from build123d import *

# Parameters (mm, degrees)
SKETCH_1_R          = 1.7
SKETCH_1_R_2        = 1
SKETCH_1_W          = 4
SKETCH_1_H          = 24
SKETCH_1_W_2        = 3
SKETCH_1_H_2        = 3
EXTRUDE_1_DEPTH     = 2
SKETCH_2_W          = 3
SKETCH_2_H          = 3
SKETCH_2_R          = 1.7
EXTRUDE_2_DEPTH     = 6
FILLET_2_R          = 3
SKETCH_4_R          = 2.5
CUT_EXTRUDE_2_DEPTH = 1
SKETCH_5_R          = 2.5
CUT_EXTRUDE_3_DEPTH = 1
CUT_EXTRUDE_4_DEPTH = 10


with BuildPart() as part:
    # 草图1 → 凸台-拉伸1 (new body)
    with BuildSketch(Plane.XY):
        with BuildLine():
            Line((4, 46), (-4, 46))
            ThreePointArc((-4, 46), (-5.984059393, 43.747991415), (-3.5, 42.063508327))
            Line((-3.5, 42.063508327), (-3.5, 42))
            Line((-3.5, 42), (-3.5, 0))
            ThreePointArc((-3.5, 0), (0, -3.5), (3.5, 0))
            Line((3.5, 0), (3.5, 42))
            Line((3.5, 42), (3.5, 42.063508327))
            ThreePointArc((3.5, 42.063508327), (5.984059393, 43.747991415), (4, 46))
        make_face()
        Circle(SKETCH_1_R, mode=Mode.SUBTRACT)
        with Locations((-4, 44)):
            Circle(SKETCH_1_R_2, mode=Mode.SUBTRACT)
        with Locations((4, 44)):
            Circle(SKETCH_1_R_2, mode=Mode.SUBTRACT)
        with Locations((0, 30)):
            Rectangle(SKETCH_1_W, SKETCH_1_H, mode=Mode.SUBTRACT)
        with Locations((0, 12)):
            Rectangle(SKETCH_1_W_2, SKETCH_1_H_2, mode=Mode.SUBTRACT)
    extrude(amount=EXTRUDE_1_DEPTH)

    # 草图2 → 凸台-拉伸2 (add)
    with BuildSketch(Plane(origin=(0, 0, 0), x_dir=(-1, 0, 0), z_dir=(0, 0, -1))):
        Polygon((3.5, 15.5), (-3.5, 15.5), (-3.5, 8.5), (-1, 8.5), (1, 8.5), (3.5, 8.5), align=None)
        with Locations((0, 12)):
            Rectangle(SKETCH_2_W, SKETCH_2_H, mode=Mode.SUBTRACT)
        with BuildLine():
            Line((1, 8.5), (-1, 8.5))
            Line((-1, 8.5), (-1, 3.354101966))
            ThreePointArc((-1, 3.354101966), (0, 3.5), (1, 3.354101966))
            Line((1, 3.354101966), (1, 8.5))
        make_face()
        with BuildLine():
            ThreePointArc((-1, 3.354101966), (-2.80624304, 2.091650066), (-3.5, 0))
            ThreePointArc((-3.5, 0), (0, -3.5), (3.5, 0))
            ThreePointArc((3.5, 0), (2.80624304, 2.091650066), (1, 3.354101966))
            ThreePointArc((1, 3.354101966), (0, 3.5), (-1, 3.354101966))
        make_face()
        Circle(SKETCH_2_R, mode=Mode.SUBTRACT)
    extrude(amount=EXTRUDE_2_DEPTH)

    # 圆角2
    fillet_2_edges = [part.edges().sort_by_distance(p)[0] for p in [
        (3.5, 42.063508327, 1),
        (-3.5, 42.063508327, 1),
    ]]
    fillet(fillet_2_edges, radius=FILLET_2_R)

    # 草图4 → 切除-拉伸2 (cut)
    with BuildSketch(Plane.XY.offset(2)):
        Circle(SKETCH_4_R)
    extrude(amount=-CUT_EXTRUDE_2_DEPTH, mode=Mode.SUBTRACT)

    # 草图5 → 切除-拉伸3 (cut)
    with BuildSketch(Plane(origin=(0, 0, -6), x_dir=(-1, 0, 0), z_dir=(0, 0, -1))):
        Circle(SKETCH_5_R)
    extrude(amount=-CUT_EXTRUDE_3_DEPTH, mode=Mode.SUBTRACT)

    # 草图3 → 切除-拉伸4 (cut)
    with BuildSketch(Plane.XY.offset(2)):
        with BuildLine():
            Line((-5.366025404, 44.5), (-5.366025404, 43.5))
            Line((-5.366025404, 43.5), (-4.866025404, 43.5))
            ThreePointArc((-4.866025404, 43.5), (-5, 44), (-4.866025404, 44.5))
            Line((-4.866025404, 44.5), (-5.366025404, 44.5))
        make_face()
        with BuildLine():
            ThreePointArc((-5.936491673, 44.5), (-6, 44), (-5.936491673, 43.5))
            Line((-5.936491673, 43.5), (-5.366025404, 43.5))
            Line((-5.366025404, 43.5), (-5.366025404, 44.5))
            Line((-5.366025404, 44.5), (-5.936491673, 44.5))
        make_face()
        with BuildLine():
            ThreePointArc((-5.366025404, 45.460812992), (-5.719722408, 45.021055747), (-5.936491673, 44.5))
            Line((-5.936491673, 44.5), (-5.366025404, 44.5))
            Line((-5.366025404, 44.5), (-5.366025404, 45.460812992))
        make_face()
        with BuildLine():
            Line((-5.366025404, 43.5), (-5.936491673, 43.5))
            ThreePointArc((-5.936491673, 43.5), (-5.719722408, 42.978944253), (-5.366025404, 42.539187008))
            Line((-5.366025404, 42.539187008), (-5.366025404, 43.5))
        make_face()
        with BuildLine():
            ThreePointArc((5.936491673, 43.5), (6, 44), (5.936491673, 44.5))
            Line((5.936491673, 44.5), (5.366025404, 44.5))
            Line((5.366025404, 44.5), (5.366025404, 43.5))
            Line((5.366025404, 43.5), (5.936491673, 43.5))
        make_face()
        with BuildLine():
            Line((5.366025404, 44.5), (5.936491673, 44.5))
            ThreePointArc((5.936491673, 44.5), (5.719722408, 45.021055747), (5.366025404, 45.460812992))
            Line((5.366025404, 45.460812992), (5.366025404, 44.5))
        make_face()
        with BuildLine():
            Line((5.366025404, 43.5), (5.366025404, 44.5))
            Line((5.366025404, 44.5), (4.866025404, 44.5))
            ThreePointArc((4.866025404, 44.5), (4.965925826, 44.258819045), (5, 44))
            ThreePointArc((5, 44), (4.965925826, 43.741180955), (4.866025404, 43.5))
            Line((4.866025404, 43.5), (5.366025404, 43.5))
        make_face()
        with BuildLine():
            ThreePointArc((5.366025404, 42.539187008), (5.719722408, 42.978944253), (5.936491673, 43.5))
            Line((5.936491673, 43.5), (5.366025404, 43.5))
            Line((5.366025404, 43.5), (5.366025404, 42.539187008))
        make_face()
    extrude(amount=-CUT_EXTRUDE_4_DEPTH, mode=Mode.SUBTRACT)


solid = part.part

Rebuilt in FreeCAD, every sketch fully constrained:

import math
import FreeCAD as App
import Part
import Sketcher

V = App.Vector


def edges_at(feature, points):
    """Names of the edges that pass closest to the given points."""
    edges = feature.Shape.Edges
    near = lambda p: min(range(len(edges)), key=lambda i: edges[i].distToShape(Part.Vertex(*p))[0])
    return sorted({f"Edge{near(p) + 1}" for p in points})

doc = App.newDocument("Part")
body = doc.addObject("PartDesign::Body", "Body")

sketch1 = body.newObject("Sketcher::SketchObject", "Sketch")
sketch1.AttachmentSupport = (doc.getObject("XY_Plane"), [""])
sketch1.MapMode = "FlatFace"
sketch1.addGeometry(Part.LineSegment(V(4, 46, 0), V(-4, 46, 0)), False)
sketch1.addGeometry(Part.ArcOfCircle(Part.Circle(V(-4, 44, 0), V(0, 0, 1), 2), math.radians(90), math.radians(284)), False)
sketch1.addGeometry(Part.LineSegment(V(-3.5, 42.1, 0), V(-3.5, 0, 0)), False)
sketch1.addGeometry(Part.ArcOfCircle(Part.Circle(V(0, 0, 0), V(0, 0, 1), 3.5), math.radians(180), math.radians(360)), False)
sketch1.addGeometry(Part.LineSegment(V(3.5, 0, 0), V(3.5, 42.1, 0)), False)
sketch1.addGeometry(Part.ArcOfCircle(Part.Circle(V(4, 44, 0), V(0, 0, 1), 2), math.radians(-104), math.radians(90)), False)
sketch1.addGeometry(Part.Circle(V(0, 0, 0), V(0, 0, 1), 1.7), False)
sketch1.addGeometry(Part.LineSegment(V(1.5, 10.5, 0), V(-1.5, 10.5, 0)), False)
sketch1.addGeometry(Part.LineSegment(V(-1.5, 10.5, 0), V(-1.5, 13.5, 0)), False)
sketch1.addGeometry(Part.LineSegment(V(-1.5, 13.5, 0), V(1.5, 13.5, 0)), False)
sketch1.addGeometry(Part.LineSegment(V(1.5, 13.5, 0), V(1.5, 10.5, 0)), False)
sketch1.addGeometry(Part.Circle(V(-4, 44, 0), V(0, 0, 1), 1), False)
sketch1.addGeometry(Part.LineSegment(V(2, 18, 0), V(-2, 18, 0)), False)
sketch1.addGeometry(Part.LineSegment(V(-2, 18, 0), V(-2, 42, 0)), False)
sketch1.addGeometry(Part.LineSegment(V(-2, 42, 0), V(2, 42, 0)), False)
sketch1.addGeometry(Part.LineSegment(V(2, 42, 0), V(2, 18, 0)), False)
sketch1.addGeometry(Part.Circle(V(4, 44, 0), V(0, 0, 1), 1), False)
sketch1.addConstraint(Sketcher.Constraint("Tangent", 0, 2, 1, 1))
sketch1.addConstraint(Sketcher.Constraint("Coincident", 1, 2, 2, 1))
sketch1.addConstraint(Sketcher.Constraint("Tangent", 2, 2, 3, 1))
sketch1.addConstraint(Sketcher.Constraint("Tangent", 3, 2, 4, 1))
sketch1.addConstraint(Sketcher.Constraint("Coincident", 4, 2, 5, 1))
sketch1.addConstraint(Sketcher.Constraint("Tangent", 5, 2, 0, 1))
sketch1.addConstraint(Sketcher.Constraint("Coincident", 7, 2, 8, 1))
sketch1.addConstraint(Sketcher.Constraint("Coincident", 8, 2, 9, 1))
sketch1.addConstraint(Sketcher.Constraint("Coincident", 9, 2, 10, 1))
sketch1.addConstraint(Sketcher.Constraint("Coincident", 10, 2, 7, 1))
sketch1.addConstraint(Sketcher.Constraint("Coincident", 12, 2, 13, 1))
sketch1.addConstraint(Sketcher.Constraint("Coincident", 13, 2, 14, 1))
sketch1.addConstraint(Sketcher.Constraint("Coincident", 14, 2, 15, 1))
sketch1.addConstraint(Sketcher.Constraint("Coincident", 15, 2, 12, 1))
sketch1.addConstraint(Sketcher.Constraint("Horizontal", 0))
sketch1.addConstraint(Sketcher.Constraint("Vertical", 2))
sketch1.addConstraint(Sketcher.Constraint("Vertical", 4))
sketch1.addConstraint(Sketcher.Constraint("Horizontal", 7))
sketch1.addConstraint(Sketcher.Constraint("Vertical", 8))
sketch1.addConstraint(Sketcher.Constraint("Horizontal", 9))
sketch1.addConstraint(Sketcher.Constraint("Vertical", 10))
sketch1.addConstraint(Sketcher.Constraint("Horizontal", 12))
sketch1.addConstraint(Sketcher.Constraint("Vertical", 13))
sketch1.addConstraint(Sketcher.Constraint("Horizontal", 14))
sketch1.addConstraint(Sketcher.Constraint("Vertical", 15))
sketch1.addConstraint(Sketcher.Constraint("Coincident", 3, 3, -1, 1))
sketch1.addConstraint(Sketcher.Constraint("Coincident", 6, 3, -1, 1))
sketch1.addConstraint(Sketcher.Constraint("Coincident", 11, 3, 1, 3))
sketch1.addConstraint(Sketcher.Constraint("Coincident", 16, 3, 5, 3))
sketch1.addConstraint(Sketcher.Constraint("Equal", 1, 5))
sketch1.addConstraint(Sketcher.Constraint("Equal", 11, 16))
sketch1.addConstraint(Sketcher.Constraint("Horizontal", 1, 2, 4, 2))
sketch1.addConstraint(Sketcher.Constraint("Equal", 9, 8))
sketch1.addConstraint(Sketcher.Constraint("Diameter", 11, 2.0))
sketch1.addConstraint(Sketcher.Constraint("Radius", 1, 2.0))
sketch1.addConstraint(Sketcher.Constraint("Diameter", 6, 3.4))
sketch1.addConstraint(Sketcher.Constraint("Radius", 3, 3.5))
sketch1.addConstraint(Sketcher.Constraint("DistanceX", 0, 2, 0, 1, 8.0))
sketch1.addConstraint(Sketcher.Constraint("DistanceX", 7, 2, 7, 1, 3.0))
sketch1.addConstraint(Sketcher.Constraint("DistanceX", 12, 2, 12, 1, 4.0))
sketch1.addConstraint(Sketcher.Constraint("DistanceY", 13, 1, 13, 2, 24.0))
sketch1.addConstraint(Sketcher.Constraint("DistanceY", -1, 1, 1, 3, 44.0))
sketch1.addConstraint(Sketcher.Constraint("DistanceX", 12, 2, -1, 1, 2.0))
sketch1.addConstraint(Sketcher.Constraint("DistanceY", -1, 1, 12, 2, 18.0))
sketch1.addConstraint(Sketcher.Constraint("DistanceX", 2, 2, 7, 2, 2.0))
sketch1.addConstraint(Sketcher.Constraint("DistanceY", -1, 1, 7, 2, 10.5))
pad1 = body.newObject("PartDesign::Pad", "Pad")
pad1.Profile = sketch1
pad1.Length = 2

sketch2 = body.newObject("Sketcher::SketchObject", "Sketch001")
sketch2.AttachmentSupport = (doc.getObject("XY_Plane"), [""])
sketch2.MapMode = "FlatFace"
sketch2.addGeometry(Part.LineSegment(V(-3.5, 15.5, 0), V(3.5, 15.5, 0)), False)
sketch2.addGeometry(Part.LineSegment(V(3.5, 15.5, 0), V(3.5, 8.5, 0)), False)
sketch2.addGeometry(Part.LineSegment(V(3.5, 8.5, 0), V(1, 8.5, 0)), False)
sketch2.addGeometry(Part.LineSegment(V(1, 8.5, 0), V(1, 3.4, 0)), False)
sketch2.addGeometry(Part.ArcOfCircle(Part.Circle(V(0, 0, 0), V(0, 0, 1), 3.5), math.radians(0), math.radians(73)), False)
sketch2.addGeometry(Part.ArcOfCircle(Part.Circle(V(0, 0, 0), V(0, 0, 1), 3.5), math.radians(180), math.radians(360)), False)
sketch2.addGeometry(Part.ArcOfCircle(Part.Circle(V(0, 0, 0), V(0, 0, 1), 3.5), math.radians(107), math.radians(180)), False)
sketch2.addGeometry(Part.LineSegment(V(-1, 3.4, 0), V(-1, 8.5, 0)), False)
sketch2.addGeometry(Part.LineSegment(V(-1, 8.5, 0), V(-3.5, 8.5, 0)), False)
sketch2.addGeometry(Part.LineSegment(V(-3.5, 8.5, 0), V(-3.5, 15.5, 0)), False)
sketch2.addGeometry(Part.Circle(V(0, 0, 0), V(0, 0, 1), 1.7), False)
sketch2.addGeometry(Part.LineSegment(V(-1.5, 10.5, 0), V(1.5, 10.5, 0)), False)
sketch2.addGeometry(Part.LineSegment(V(1.5, 10.5, 0), V(1.5, 13.5, 0)), False)
sketch2.addGeometry(Part.LineSegment(V(1.5, 13.5, 0), V(-1.5, 13.5, 0)), False)
sketch2.addGeometry(Part.LineSegment(V(-1.5, 13.5, 0), V(-1.5, 10.5, 0)), False)
sketch2.addConstraint(Sketcher.Constraint("Coincident", 0, 2, 1, 1))
sketch2.addConstraint(Sketcher.Constraint("Coincident", 1, 2, 2, 1))
sketch2.addConstraint(Sketcher.Constraint("Coincident", 2, 2, 3, 1))
sketch2.addConstraint(Sketcher.Constraint("Coincident", 3, 2, 4, 2))
sketch2.addConstraint(Sketcher.Constraint("Tangent", 4, 1, 5, 2))
sketch2.addConstraint(Sketcher.Constraint("Tangent", 5, 1, 6, 2))
sketch2.addConstraint(Sketcher.Constraint("Coincident", 6, 1, 7, 1))
sketch2.addConstraint(Sketcher.Constraint("Coincident", 7, 2, 8, 1))
sketch2.addConstraint(Sketcher.Constraint("Coincident", 8, 2, 9, 1))
sketch2.addConstraint(Sketcher.Constraint("Coincident", 9, 2, 0, 1))
sketch2.addConstraint(Sketcher.Constraint("Coincident", 11, 2, 12, 1))
sketch2.addConstraint(Sketcher.Constraint("Coincident", 12, 2, 13, 1))
sketch2.addConstraint(Sketcher.Constraint("Coincident", 13, 2, 14, 1))
sketch2.addConstraint(Sketcher.Constraint("Coincident", 14, 2, 11, 1))
sketch2.addConstraint(Sketcher.Constraint("Horizontal", 0))
sketch2.addConstraint(Sketcher.Constraint("Vertical", 1))
sketch2.addConstraint(Sketcher.Constraint("Horizontal", 2))
sketch2.addConstraint(Sketcher.Constraint("Vertical", 3))
sketch2.addConstraint(Sketcher.Constraint("Vertical", 7))
sketch2.addConstraint(Sketcher.Constraint("Horizontal", 8))
sketch2.addConstraint(Sketcher.Constraint("Vertical", 9))
sketch2.addConstraint(Sketcher.Constraint("Horizontal", 11))
sketch2.addConstraint(Sketcher.Constraint("Vertical", 12))
sketch2.addConstraint(Sketcher.Constraint("Horizontal", 13))
sketch2.addConstraint(Sketcher.Constraint("Vertical", 14))
sketch2.addConstraint(Sketcher.Constraint("Coincident", 4, 3, -1, 1))
sketch2.addConstraint(Sketcher.Constraint("Coincident", 10, 3, -1, 1))
sketch2.addConstraint(Sketcher.Constraint("Equal", 4, 5))
sketch2.addConstraint(Sketcher.Constraint("Equal", 5, 6))
sketch2.addConstraint(Sketcher.Constraint("Symmetric", 2, 2, 7, 2, -2))
sketch2.addConstraint(Sketcher.Constraint("PointOnObject", 4, 1, -1))
sketch2.addConstraint(Sketcher.Constraint("PointOnObject", 5, 1, -1))
sketch2.addConstraint(Sketcher.Constraint("Vertical", 1, 2, 4, 1))
sketch2.addConstraint(Sketcher.Constraint("Vertical", 5, 1, 8, 2))
sketch2.addConstraint(Sketcher.Constraint("Equal", 0, 1))
sketch2.addConstraint(Sketcher.Constraint("Equal", 13, 12))
sketch2.addConstraint(Sketcher.Constraint("Diameter", 10, 3.4))
sketch2.addConstraint(Sketcher.Constraint("Radius", 4, 3.5))
sketch2.addConstraint(Sketcher.Constraint("DistanceX", 11, 1, 11, 2, 3.0))
sketch2.addConstraint(Sketcher.Constraint("DistanceX", 2, 2, 2, 1, 2.5))
sketch2.addConstraint(Sketcher.Constraint("DistanceY", 2, 2, 11, 2, 2.0))
sketch2.addConstraint(Sketcher.Constraint("DistanceX", 11, 2, 1, 2, 2.0))
sketch2.addConstraint(Sketcher.Constraint("DistanceY", -1, 1, 0, 2, 15.5))
pad2 = body.newObject("PartDesign::Pad", "Pad001")
pad2.Profile = sketch2
pad2.Length = 6
pad2.Reversed = True
doc.recompute()

fillet = body.newObject("PartDesign::Fillet", "Fillet")
fillet.Base = (pad2, edges_at(pad2, [(3.5, 42.064, 1), (-3.5, 42.064, 1)]))
fillet.Radius = 3

sketch3 = body.newObject("Sketcher::SketchObject", "Sketch002")
sketch3.AttachmentSupport = (doc.getObject("XY_Plane"), [""])
sketch3.MapMode = "FlatFace"
sketch3.AttachmentOffset = App.Placement(V(0, 0, 2), App.Rotation())
sketch3.addGeometry(Part.Circle(V(0, 0, 0), V(0, 0, 1), 2.5), False)
sketch3.addConstraint(Sketcher.Constraint("Coincident", 0, 3, -1, 1))
sketch3.addConstraint(Sketcher.Constraint("Diameter", 0, 5.0))
pocket1 = body.newObject("PartDesign::Pocket", "Pocket")
pocket1.Profile = sketch3
pocket1.Length = 1

sketch4 = body.newObject("Sketcher::SketchObject", "Sketch003")
sketch4.AttachmentSupport = (doc.getObject("XY_Plane"), [""])
sketch4.MapMode = "FlatFace"
sketch4.AttachmentOffset = App.Placement(V(0, 0, -6), App.Rotation())
sketch4.addGeometry(Part.Circle(V(0, 0, 0), V(0, 0, 1), 2.5), False)
sketch4.addConstraint(Sketcher.Constraint("Coincident", 0, 3, -1, 1))
sketch4.addConstraint(Sketcher.Constraint("Diameter", 0, 5.0))
pocket2 = body.newObject("PartDesign::Pocket", "Pocket001")
pocket2.Profile = sketch4
pocket2.Length = 1
pocket2.Reversed = True

sketch5 = body.newObject("Sketcher::SketchObject", "Sketch004")
sketch5.AttachmentSupport = (doc.getObject("XY_Plane"), [""])
sketch5.MapMode = "FlatFace"
sketch5.AttachmentOffset = App.Placement(V(0, 0, 2), App.Rotation())
sketch5.addGeometry(Part.ArcOfCircle(Part.Circle(V(-4, 44, 0), V(0, 0, 1), 1), math.radians(150), math.radians(210)), False)
sketch5.addGeometry(Part.LineSegment(V(-4.9, 44.5, 0), V(-5.4, 44.5, 0)), False)
sketch5.addGeometry(Part.LineSegment(V(-5.4, 44.5, 0), V(-5.4, 45.5, 0)), False)
sketch5.addGeometry(Part.ArcOfCircle(Part.Circle(V(-4, 44, 0), V(0, 0, 1), 2), math.radians(133), math.radians(166)), False)
sketch5.addGeometry(Part.ArcOfCircle(Part.Circle(V(-4, 44, 0), V(0, 0, 1), 2), math.radians(166), math.radians(194)), False)
sketch5.addGeometry(Part.ArcOfCircle(Part.Circle(V(-4, 44, 0), V(0, 0, 1), 2), math.radians(-166), math.radians(-133)), False)
sketch5.addGeometry(Part.LineSegment(V(-5.4, 42.5, 0), V(-5.4, 43.5, 0)), False)
sketch5.addGeometry(Part.LineSegment(V(-5.4, 43.5, 0), V(-4.9, 43.5, 0)), False)
sketch5.addGeometry(Part.ArcOfCircle(Part.Circle(V(4, 44, 0), V(0, 0, 1), 2), math.radians(-14), math.radians(14)), False)
sketch5.addGeometry(Part.ArcOfCircle(Part.Circle(V(4, 44, 0), V(0, 0, 1), 2), math.radians(14), math.radians(47)), False)
sketch5.addGeometry(Part.LineSegment(V(5.4, 45.5, 0), V(5.4, 44.5, 0)), False)
sketch5.addGeometry(Part.LineSegment(V(5.4, 44.5, 0), V(4.9, 44.5, 0)), False)
sketch5.addGeometry(Part.ArcOfCircle(Part.Circle(V(4, 44, 0), V(0, 0, 1), 1), math.radians(0), math.radians(30)), False)
sketch5.addGeometry(Part.ArcOfCircle(Part.Circle(V(4, 44, 0), V(0, 0, 1), 1), math.radians(-30), math.radians(0)), False)
sketch5.addGeometry(Part.LineSegment(V(4.9, 43.5, 0), V(5.4, 43.5, 0)), False)
sketch5.addGeometry(Part.LineSegment(V(5.4, 43.5, 0), V(5.4, 42.5, 0)), False)
sketch5.addGeometry(Part.ArcOfCircle(Part.Circle(V(4, 44, 0), V(0, 0, 1), 2), math.radians(-47), math.radians(-14)), False)
sketch5.addConstraint(Sketcher.Constraint("Coincident", 0, 1, 1, 1))
sketch5.addConstraint(Sketcher.Constraint("Coincident", 1, 2, 2, 1))
sketch5.addConstraint(Sketcher.Constraint("Coincident", 2, 2, 3, 1))
sketch5.addConstraint(Sketcher.Constraint("Tangent", 3, 2, 4, 1))
sketch5.addConstraint(Sketcher.Constraint("Tangent", 4, 2, 5, 1))
sketch5.addConstraint(Sketcher.Constraint("Coincident", 5, 2, 6, 1))
sketch5.addConstraint(Sketcher.Constraint("Coincident", 6, 2, 7, 1))
sketch5.addConstraint(Sketcher.Constraint("Coincident", 7, 2, 0, 2))
sketch5.addConstraint(Sketcher.Constraint("Tangent", 8, 2, 9, 1))
sketch5.addConstraint(Sketcher.Constraint("Coincident", 9, 2, 10, 1))
sketch5.addConstraint(Sketcher.Constraint("Coincident", 10, 2, 11, 1))
sketch5.addConstraint(Sketcher.Constraint("Coincident", 11, 2, 12, 2))
sketch5.addConstraint(Sketcher.Constraint("Tangent", 12, 1, 13, 2))
sketch5.addConstraint(Sketcher.Constraint("Coincident", 13, 1, 14, 1))
sketch5.addConstraint(Sketcher.Constraint("Coincident", 14, 2, 15, 1))
sketch5.addConstraint(Sketcher.Constraint("Coincident", 15, 2, 16, 1))
sketch5.addConstraint(Sketcher.Constraint("Tangent", 16, 2, 8, 1))
sketch5.addConstraint(Sketcher.Constraint("Horizontal", 1))
sketch5.addConstraint(Sketcher.Constraint("Vertical", 2))
sketch5.addConstraint(Sketcher.Constraint("Vertical", 6))
sketch5.addConstraint(Sketcher.Constraint("Horizontal", 7))
sketch5.addConstraint(Sketcher.Constraint("Vertical", 10))
sketch5.addConstraint(Sketcher.Constraint("Horizontal", 11))
sketch5.addConstraint(Sketcher.Constraint("Horizontal", 14))
sketch5.addConstraint(Sketcher.Constraint("Vertical", 15))
sketch5.addConstraint(Sketcher.Constraint("Coincident", 3, 3, 0, 3))
sketch5.addConstraint(Sketcher.Constraint("Coincident", 5, 3, 0, 3))
sketch5.addConstraint(Sketcher.Constraint("Coincident", 12, 3, 8, 3))
sketch5.addConstraint(Sketcher.Constraint("Equal", 5, 8))
sketch5.addConstraint(Sketcher.Constraint("Equal", 8, 9))
sketch5.addConstraint(Sketcher.Constraint("Equal", 0, 12))
sketch5.addConstraint(Sketcher.Constraint("Equal", 12, 13))
sketch5.addConstraint(Sketcher.Constraint("Equal", 9, 16))
sketch5.addConstraint(Sketcher.Constraint("Symmetric", 0, 3, 8, 3, -2))
sketch5.addConstraint(Sketcher.Constraint("Symmetric", 1, 2, 10, 2, -2))
sketch5.addConstraint(Sketcher.Constraint("Symmetric", 6, 2, 14, 2, -2))
sketch5.addConstraint(Sketcher.Constraint("Horizontal", 1, 2, 3, 2))
sketch5.addConstraint(Sketcher.Constraint("Horizontal", 4, 2, 6, 2))
sketch5.addConstraint(Sketcher.Constraint("Horizontal", 3, 2, 8, 2))
sketch5.addConstraint(Sketcher.Constraint("Horizontal", 16, 3, 12, 1))
sketch5.addConstraint(Sketcher.Constraint("Horizontal", 14, 2, 16, 2))
sketch5.addConstraint(Sketcher.Constraint("Vertical", 3, 2, 4, 2))
sketch5.addConstraint(Sketcher.Constraint("Vertical", 2, 2, 5, 2))
sketch5.addConstraint(Sketcher.Constraint("Radius", 0, 1.0))
sketch5.addConstraint(Sketcher.Constraint("Radius", 3, 2.0))
sketch5.addConstraint(Sketcher.Constraint("DistanceX", 1, 2, 1, 1, 0.5))
sketch5.addConstraint(Sketcher.Constraint("DistanceX", 0, 3, -1, 1, 4.0))
sketch5.addConstraint(Sketcher.Constraint("DistanceY", -1, 1, 0, 3, 44.0))
sketch5.addConstraint(Sketcher.Constraint("DistanceY", 4, 2, 3, 2, 1.0))
pocket3 = body.newObject("PartDesign::Pocket", "Pocket002")
pocket3.Profile = sketch5
pocket3.Length = 10

doc.recompute()
